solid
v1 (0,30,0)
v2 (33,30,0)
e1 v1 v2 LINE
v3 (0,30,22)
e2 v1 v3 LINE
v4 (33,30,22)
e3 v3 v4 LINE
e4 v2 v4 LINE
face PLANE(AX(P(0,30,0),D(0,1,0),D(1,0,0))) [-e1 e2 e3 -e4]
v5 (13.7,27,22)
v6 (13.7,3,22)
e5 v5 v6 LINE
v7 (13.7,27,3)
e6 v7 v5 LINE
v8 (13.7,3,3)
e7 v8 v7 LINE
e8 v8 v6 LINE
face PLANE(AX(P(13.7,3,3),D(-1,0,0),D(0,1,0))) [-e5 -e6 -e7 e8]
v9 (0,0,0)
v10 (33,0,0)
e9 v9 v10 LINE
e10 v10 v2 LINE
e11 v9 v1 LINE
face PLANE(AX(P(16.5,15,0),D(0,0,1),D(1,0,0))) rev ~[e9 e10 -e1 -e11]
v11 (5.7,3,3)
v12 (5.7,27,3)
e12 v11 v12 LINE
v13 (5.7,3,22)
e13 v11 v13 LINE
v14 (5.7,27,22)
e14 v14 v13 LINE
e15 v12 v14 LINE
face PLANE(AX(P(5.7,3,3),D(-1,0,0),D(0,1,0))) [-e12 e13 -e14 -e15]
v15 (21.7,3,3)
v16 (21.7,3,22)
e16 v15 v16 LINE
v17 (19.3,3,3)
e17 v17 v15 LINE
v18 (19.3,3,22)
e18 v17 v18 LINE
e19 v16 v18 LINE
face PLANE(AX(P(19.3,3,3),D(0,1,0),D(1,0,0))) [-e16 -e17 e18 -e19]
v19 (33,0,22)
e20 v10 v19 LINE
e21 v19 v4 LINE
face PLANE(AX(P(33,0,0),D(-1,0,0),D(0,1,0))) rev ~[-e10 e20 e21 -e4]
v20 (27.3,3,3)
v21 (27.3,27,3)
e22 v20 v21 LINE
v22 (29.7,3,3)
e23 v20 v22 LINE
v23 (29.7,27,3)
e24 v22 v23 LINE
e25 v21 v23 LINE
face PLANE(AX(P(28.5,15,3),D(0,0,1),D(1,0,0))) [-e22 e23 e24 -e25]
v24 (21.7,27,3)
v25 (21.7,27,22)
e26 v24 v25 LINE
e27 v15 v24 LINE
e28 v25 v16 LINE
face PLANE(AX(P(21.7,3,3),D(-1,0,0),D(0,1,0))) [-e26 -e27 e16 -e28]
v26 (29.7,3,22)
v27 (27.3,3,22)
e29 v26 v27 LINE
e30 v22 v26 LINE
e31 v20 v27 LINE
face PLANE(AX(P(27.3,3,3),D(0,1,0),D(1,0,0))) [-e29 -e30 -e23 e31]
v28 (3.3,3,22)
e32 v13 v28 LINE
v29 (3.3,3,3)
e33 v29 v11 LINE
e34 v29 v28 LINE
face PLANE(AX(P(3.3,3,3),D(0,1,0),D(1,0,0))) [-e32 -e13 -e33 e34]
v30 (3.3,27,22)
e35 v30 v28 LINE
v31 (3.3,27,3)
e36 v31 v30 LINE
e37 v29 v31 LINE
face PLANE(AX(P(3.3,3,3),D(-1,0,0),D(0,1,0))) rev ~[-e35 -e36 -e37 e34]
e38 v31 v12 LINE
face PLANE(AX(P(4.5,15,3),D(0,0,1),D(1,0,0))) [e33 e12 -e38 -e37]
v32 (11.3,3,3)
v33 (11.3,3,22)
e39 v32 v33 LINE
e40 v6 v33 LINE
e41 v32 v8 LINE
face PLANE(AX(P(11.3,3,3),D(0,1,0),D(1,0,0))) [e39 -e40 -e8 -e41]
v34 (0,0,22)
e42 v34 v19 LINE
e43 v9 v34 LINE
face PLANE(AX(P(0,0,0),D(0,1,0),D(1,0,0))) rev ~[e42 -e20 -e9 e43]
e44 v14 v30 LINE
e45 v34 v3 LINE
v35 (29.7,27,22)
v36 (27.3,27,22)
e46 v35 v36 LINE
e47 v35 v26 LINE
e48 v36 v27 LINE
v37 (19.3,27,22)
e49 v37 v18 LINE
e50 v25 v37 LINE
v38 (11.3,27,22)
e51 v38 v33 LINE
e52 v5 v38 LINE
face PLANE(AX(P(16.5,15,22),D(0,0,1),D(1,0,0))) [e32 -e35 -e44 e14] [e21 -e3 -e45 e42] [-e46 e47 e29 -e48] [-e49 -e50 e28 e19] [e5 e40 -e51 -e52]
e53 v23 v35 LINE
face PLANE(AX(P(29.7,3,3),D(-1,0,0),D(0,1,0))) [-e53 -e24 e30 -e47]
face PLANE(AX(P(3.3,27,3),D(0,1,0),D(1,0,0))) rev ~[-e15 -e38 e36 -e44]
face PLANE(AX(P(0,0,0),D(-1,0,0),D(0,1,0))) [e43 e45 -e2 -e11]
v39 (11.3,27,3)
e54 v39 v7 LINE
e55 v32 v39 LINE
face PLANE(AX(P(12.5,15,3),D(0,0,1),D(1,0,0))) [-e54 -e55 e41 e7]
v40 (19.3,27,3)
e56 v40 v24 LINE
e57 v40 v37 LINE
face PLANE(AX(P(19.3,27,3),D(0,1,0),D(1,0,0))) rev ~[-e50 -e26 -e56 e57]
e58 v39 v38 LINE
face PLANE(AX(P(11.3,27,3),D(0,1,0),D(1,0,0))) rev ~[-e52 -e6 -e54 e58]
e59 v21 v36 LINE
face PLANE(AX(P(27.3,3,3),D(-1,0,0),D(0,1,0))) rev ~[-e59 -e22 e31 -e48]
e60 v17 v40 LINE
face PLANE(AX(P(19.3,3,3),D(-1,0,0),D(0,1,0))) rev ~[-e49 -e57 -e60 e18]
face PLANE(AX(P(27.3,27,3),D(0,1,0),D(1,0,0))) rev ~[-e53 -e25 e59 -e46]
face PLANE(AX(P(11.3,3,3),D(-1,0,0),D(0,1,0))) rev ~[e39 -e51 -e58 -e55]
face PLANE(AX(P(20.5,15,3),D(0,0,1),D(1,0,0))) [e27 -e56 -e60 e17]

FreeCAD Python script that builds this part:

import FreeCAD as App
import Part
import Sketcher
Q = App.Units.Quantity

doc = App.newDocument("Part")
body = doc.addObject("PartDesign::Body", "Body")

sketch1 = doc.addObject("Sketcher::SketchObject", "Sketch")
body.addObject(sketch1)
sketch1.AttachmentSupport = (doc.XY_Plane, [""])
sketch1.MapMode = "FlatFace"
sketch1.addGeometry([
    Part.LineSegment(App.Vector(0, 24, 0), App.Vector(0, 0, 0)),
    Part.LineSegment(App.Vector(0, 0, 0), App.Vector(2.4, 0, 0)),
    Part.LineSegment(App.Vector(2.4, 0, 0), App.Vector(2.4, 24, 0)),
    Part.LineSegment(App.Vector(2.4, 24, 0), App.Vector(0, 24, 0)),
], False)
sketch1.addConstraint([
    Sketcher.Constraint("Coincident", 0, 2, 1, 1),
    Sketcher.Constraint("Coincident", 1, 2, 2, 1),
    Sketcher.Constraint("Coincident", 2, 2, 3, 1),
    Sketcher.Constraint("Coincident", 3, 2, 0, 1),
    Sketcher.Constraint("Vertical", 0),
    Sketcher.Constraint("Horizontal", 1),
    Sketcher.Constraint("Vertical", 2),
    Sketcher.Constraint("Horizontal", 3),
    Sketcher.Constraint("Coincident", 0, 2, -1, 1),
    Sketcher.Constraint("DistanceY", 0, 2, 0, 1, Q("24 mm")),
    Sketcher.Constraint("DistanceX", 1, 1, 1, 2, Q("2.4 mm")),
])
pad1 = doc.addObject("PartDesign::Pad", "Pad")
body.addObject(pad1)
pad1.Profile = sketch1
pad1.Length = 24
body2 = doc.addObject("PartDesign::Body", "Body001")

sketch2 = doc.addObject("Sketcher::SketchObject", "Sketch001")
body2.addObject(sketch2)
sketch2.AttachmentSupport = (doc.getObject("XY_Plane001"), [""])
sketch2.MapMode = "FlatFace"
sketch2.addGeometry([
    Part.LineSegment(App.Vector(8, 24, 0), App.Vector(8, 0, 0)),
    Part.LineSegment(App.Vector(8, 0, 0), App.Vector(10.4, 0, 0)),
    Part.LineSegment(App.Vector(10.4, 0, 0), App.Vector(10.4, 24, 0)),
    Part.LineSegment(App.Vector(10.4, 24, 0), App.Vector(8, 24, 0)),
], False)
sketch2.addConstraint([
    Sketcher.Constraint("Coincident", 0, 2, 1, 1),
    Sketcher.Constraint("Coincident", 1, 2, 2, 1),
    Sketcher.Constraint("Coincident", 2, 2, 3, 1),
    Sketcher.Constraint("Coincident", 3, 2, 0, 1),
    Sketcher.Constraint("Vertical", 0),
    Sketcher.Constraint("Horizontal", 1),
    Sketcher.Constraint("Vertical", 2),
    Sketcher.Constraint("Horizontal", 3),
    Sketcher.Constraint("PointOnObject", 0, 2, -1),
    Sketcher.Constraint("DistanceY", 0, 2, 0, 1, Q("24 mm")),
    Sketcher.Constraint("DistanceX", 1, 1, 1, 2, Q("2.4 mm")),
    Sketcher.Constraint("DistanceX", -1, 1, 0, 2, Q("8 mm")),
])
pad2 = doc.addObject("PartDesign::Pad", "Pad001")
body2.addObject(pad2)
pad2.Profile = sketch2
pad2.Length = 24
body3 = doc.addObject("PartDesign::Body", "Body002")

sketch3 = doc.addObject("Sketcher::SketchObject", "Sketch002")
body3.addObject(sketch3)
sketch3.AttachmentSupport = (doc.getObject("XY_Plane002"), [""])
sketch3.MapMode = "FlatFace"
sketch3.addGeometry([
    Part.LineSegment(App.Vector(16, 24, 0), App.Vector(16, 0, 0)),
    Part.LineSegment(App.Vector(16, 0, 0), App.Vector(18.4, 0, 0)),
    Part.LineSegment(App.Vector(18.4, 0, 0), App.Vector(18.4, 24, 0)),
    Part.LineSegment(App.Vector(18.4, 24, 0), App.Vector(16, 24, 0)),
], False)
sketch3.addConstraint([
    Sketcher.Constraint("Coincident", 0, 2, 1, 1),
    Sketcher.Constraint("Coincident", 1, 2, 2, 1),
    Sketcher.Constraint("Coincident", 2, 2, 3, 1),
    Sketcher.Constraint("Coincident", 3, 2, 0, 1),
    Sketcher.Constraint("Vertical", 0),
    Sketcher.Constraint("Horizontal", 1),
    Sketcher.Constraint("Vertical", 2),
    Sketcher.Constraint("Horizontal", 3),
    Sketcher.Constraint("PointOnObject", 0, 2, -1),
    Sketcher.Constraint("DistanceY", 0, 2, 0, 1, Q("24 mm")),
    Sketcher.Constraint("DistanceX", 1, 1, 1, 2, Q("2.4 mm")),
    Sketcher.Constraint("DistanceX", -1, 1, 0, 2, Q("16 mm")),
])
pad3 = doc.addObject("PartDesign::Pad", "Pad002")
body3.addObject(pad3)
pad3.Profile = sketch3
pad3.Length = 24
body4 = doc.addObject("PartDesign::Body", "Body003")
body4.AllowCompound = True

sketch4 = doc.addObject("Sketcher::SketchObject", "Sketch003")
body4.addObject(sketch4)
sketch4.AttachmentSupport = (doc.getObject("XY_Plane003"), [""])
sketch4.MapMode = "FlatFace"
sketch4.addGeometry([
    Part.LineSegment(App.Vector(24, 24, 0), App.Vector(24, 0, 0)),
    Part.LineSegment(App.Vector(24, 0, 0), App.Vector(26.4, 0, 0)),
    Part.LineSegment(App.Vector(26.4, 0, 0), App.Vector(26.4, 24, 0)),
    Part.LineSegment(App.Vector(26.4, 24, 0), App.Vector(24, 24, 0)),
], False)
sketch4.addConstraint([
    Sketcher.Constraint("Coincident", 0, 2, 1, 1),
    Sketcher.Constraint("Coincident", 1, 2, 2, 1),
    Sketcher.Constraint("Coincident", 2, 2, 3, 1),
    Sketcher.Constraint("Coincident", 3, 2, 0, 1),
    Sketcher.Constraint("Vertical", 0),
    Sketcher.Constraint("Horizontal", 1),
    Sketcher.Constraint("Vertical", 2),
    Sketcher.Constraint("Horizontal", 3),
    Sketcher.Constraint("PointOnObject", 0, 2, -1),
    Sketcher.Constraint("DistanceY", 0, 2, 0, 1, Q("24 mm")),
    Sketcher.Constraint("DistanceX", 1, 1, 1, 2, Q("2.4 mm")),
    Sketcher.Constraint("DistanceX", -1, 1, 0, 2, Q("24 mm")),
])
pad4 = doc.addObject("PartDesign::Pad", "Pad003")
body4.addObject(pad4)
pad4.Profile = sketch4
pad4.Length = 24
doc.recompute()

boolean = doc.addObject("PartDesign::Boolean", "Boolean")
body4.addObject(boolean)
boolean.Type = "Fuse"
boolean.addObjects([body])
doc.recompute()

boolean2 = doc.addObject("PartDesign::Boolean", "Boolean001")
body4.addObject(boolean2)
boolean2.Type = "Fuse"
boolean2.addObjects([body2])
doc.recompute()

boolean3 = doc.addObject("PartDesign::Boolean", "Boolean002")
body4.addObject(boolean3)
boolean3.Type = "Fuse"
boolean3.addObjects([body3])
body5 = doc.addObject("PartDesign::Body", "Body004")
body5.AllowCompound = True
doc.recompute()

body4.Placement = App.Placement(App.Vector(-13.2, -12, 3), App.Rotation(App.Vector(0, 0, 1), 0))
boolean4 = doc.addObject("PartDesign::Boolean", "Boolean003")
body5.addObject(boolean4)
boolean4.Type = "Fuse"
boolean4.addObjects([body4])
body6 = doc.addObject("PartDesign::Body", "Body005")

sketch5 = doc.addObject("Sketcher::SketchObject", "Sketch004")
body6.addObject(sketch5)
sketch5.AttachmentSupport = (doc.getObject("XY_Plane005"), [""])
sketch5.MapMode = "FlatFace"
sketch5.addGeometry([
    Part.LineSegment(App.Vector(-16, 15, 0), App.Vector(-16, -15, 0)),
    Part.LineSegment(App.Vector(-16, -15, 0), App.Vector(16, -15, 0)),
    Part.LineSegment(App.Vector(16, -15, 0), App.Vector(16, 15, 0)),
    Part.LineSegment(App.Vector(16, 15, 0), App.Vector(-16, 15, 0)),
], False)
sketch5.addConstraint([
    Sketcher.Constraint("Coincident", 0, 2, 1, 1),
    Sketcher.Constraint("Coincident", 1, 2, 2, 1),
    Sketcher.Constraint("Coincident", 2, 2, 3, 1),
    Sketcher.Constraint("Coincident", 3, 2, 0, 1),
    Sketcher.Constraint("Vertical", 0),
    Sketcher.Constraint("Horizontal", 1),
    Sketcher.Constraint("Vertical", 2),
    Sketcher.Constraint("Horizontal", 3),
    Sketcher.Constraint("Symmetric", 0, 2, 2, 2, -1, 1),
    Sketcher.Constraint("DistanceX", 1, 1, 1, 2, Q("33 mm")),
    Sketcher.Constraint("DistanceY", 0, 2, 0, 1, Q("30 mm")),
])
pad5 = doc.addObject("PartDesign::Pad", "Pad004")
body6.addObject(pad5)
pad5.Profile = sketch5
pad5.Length = 22
doc.recompute()

boolean5 = doc.addObject("PartDesign::Boolean", "Boolean004")
body6.addObject(boolean5)
boolean5.Type = "Cut"
boolean5.addObjects([body5])
body7 = doc.addObject("PartDesign::Body", "Body006")
doc.recompute()

body6.Placement = App.Placement(App.Vector(16.5, 15, 0), App.Rotation(App.Vector(0, 0, 1), 0))
boolean6 = doc.addObject("PartDesign::Boolean", "Boolean005")
body7.addObject(boolean6)
boolean6.Type = "Fuse"
boolean6.addObjects([body6])

doc.recompute()
